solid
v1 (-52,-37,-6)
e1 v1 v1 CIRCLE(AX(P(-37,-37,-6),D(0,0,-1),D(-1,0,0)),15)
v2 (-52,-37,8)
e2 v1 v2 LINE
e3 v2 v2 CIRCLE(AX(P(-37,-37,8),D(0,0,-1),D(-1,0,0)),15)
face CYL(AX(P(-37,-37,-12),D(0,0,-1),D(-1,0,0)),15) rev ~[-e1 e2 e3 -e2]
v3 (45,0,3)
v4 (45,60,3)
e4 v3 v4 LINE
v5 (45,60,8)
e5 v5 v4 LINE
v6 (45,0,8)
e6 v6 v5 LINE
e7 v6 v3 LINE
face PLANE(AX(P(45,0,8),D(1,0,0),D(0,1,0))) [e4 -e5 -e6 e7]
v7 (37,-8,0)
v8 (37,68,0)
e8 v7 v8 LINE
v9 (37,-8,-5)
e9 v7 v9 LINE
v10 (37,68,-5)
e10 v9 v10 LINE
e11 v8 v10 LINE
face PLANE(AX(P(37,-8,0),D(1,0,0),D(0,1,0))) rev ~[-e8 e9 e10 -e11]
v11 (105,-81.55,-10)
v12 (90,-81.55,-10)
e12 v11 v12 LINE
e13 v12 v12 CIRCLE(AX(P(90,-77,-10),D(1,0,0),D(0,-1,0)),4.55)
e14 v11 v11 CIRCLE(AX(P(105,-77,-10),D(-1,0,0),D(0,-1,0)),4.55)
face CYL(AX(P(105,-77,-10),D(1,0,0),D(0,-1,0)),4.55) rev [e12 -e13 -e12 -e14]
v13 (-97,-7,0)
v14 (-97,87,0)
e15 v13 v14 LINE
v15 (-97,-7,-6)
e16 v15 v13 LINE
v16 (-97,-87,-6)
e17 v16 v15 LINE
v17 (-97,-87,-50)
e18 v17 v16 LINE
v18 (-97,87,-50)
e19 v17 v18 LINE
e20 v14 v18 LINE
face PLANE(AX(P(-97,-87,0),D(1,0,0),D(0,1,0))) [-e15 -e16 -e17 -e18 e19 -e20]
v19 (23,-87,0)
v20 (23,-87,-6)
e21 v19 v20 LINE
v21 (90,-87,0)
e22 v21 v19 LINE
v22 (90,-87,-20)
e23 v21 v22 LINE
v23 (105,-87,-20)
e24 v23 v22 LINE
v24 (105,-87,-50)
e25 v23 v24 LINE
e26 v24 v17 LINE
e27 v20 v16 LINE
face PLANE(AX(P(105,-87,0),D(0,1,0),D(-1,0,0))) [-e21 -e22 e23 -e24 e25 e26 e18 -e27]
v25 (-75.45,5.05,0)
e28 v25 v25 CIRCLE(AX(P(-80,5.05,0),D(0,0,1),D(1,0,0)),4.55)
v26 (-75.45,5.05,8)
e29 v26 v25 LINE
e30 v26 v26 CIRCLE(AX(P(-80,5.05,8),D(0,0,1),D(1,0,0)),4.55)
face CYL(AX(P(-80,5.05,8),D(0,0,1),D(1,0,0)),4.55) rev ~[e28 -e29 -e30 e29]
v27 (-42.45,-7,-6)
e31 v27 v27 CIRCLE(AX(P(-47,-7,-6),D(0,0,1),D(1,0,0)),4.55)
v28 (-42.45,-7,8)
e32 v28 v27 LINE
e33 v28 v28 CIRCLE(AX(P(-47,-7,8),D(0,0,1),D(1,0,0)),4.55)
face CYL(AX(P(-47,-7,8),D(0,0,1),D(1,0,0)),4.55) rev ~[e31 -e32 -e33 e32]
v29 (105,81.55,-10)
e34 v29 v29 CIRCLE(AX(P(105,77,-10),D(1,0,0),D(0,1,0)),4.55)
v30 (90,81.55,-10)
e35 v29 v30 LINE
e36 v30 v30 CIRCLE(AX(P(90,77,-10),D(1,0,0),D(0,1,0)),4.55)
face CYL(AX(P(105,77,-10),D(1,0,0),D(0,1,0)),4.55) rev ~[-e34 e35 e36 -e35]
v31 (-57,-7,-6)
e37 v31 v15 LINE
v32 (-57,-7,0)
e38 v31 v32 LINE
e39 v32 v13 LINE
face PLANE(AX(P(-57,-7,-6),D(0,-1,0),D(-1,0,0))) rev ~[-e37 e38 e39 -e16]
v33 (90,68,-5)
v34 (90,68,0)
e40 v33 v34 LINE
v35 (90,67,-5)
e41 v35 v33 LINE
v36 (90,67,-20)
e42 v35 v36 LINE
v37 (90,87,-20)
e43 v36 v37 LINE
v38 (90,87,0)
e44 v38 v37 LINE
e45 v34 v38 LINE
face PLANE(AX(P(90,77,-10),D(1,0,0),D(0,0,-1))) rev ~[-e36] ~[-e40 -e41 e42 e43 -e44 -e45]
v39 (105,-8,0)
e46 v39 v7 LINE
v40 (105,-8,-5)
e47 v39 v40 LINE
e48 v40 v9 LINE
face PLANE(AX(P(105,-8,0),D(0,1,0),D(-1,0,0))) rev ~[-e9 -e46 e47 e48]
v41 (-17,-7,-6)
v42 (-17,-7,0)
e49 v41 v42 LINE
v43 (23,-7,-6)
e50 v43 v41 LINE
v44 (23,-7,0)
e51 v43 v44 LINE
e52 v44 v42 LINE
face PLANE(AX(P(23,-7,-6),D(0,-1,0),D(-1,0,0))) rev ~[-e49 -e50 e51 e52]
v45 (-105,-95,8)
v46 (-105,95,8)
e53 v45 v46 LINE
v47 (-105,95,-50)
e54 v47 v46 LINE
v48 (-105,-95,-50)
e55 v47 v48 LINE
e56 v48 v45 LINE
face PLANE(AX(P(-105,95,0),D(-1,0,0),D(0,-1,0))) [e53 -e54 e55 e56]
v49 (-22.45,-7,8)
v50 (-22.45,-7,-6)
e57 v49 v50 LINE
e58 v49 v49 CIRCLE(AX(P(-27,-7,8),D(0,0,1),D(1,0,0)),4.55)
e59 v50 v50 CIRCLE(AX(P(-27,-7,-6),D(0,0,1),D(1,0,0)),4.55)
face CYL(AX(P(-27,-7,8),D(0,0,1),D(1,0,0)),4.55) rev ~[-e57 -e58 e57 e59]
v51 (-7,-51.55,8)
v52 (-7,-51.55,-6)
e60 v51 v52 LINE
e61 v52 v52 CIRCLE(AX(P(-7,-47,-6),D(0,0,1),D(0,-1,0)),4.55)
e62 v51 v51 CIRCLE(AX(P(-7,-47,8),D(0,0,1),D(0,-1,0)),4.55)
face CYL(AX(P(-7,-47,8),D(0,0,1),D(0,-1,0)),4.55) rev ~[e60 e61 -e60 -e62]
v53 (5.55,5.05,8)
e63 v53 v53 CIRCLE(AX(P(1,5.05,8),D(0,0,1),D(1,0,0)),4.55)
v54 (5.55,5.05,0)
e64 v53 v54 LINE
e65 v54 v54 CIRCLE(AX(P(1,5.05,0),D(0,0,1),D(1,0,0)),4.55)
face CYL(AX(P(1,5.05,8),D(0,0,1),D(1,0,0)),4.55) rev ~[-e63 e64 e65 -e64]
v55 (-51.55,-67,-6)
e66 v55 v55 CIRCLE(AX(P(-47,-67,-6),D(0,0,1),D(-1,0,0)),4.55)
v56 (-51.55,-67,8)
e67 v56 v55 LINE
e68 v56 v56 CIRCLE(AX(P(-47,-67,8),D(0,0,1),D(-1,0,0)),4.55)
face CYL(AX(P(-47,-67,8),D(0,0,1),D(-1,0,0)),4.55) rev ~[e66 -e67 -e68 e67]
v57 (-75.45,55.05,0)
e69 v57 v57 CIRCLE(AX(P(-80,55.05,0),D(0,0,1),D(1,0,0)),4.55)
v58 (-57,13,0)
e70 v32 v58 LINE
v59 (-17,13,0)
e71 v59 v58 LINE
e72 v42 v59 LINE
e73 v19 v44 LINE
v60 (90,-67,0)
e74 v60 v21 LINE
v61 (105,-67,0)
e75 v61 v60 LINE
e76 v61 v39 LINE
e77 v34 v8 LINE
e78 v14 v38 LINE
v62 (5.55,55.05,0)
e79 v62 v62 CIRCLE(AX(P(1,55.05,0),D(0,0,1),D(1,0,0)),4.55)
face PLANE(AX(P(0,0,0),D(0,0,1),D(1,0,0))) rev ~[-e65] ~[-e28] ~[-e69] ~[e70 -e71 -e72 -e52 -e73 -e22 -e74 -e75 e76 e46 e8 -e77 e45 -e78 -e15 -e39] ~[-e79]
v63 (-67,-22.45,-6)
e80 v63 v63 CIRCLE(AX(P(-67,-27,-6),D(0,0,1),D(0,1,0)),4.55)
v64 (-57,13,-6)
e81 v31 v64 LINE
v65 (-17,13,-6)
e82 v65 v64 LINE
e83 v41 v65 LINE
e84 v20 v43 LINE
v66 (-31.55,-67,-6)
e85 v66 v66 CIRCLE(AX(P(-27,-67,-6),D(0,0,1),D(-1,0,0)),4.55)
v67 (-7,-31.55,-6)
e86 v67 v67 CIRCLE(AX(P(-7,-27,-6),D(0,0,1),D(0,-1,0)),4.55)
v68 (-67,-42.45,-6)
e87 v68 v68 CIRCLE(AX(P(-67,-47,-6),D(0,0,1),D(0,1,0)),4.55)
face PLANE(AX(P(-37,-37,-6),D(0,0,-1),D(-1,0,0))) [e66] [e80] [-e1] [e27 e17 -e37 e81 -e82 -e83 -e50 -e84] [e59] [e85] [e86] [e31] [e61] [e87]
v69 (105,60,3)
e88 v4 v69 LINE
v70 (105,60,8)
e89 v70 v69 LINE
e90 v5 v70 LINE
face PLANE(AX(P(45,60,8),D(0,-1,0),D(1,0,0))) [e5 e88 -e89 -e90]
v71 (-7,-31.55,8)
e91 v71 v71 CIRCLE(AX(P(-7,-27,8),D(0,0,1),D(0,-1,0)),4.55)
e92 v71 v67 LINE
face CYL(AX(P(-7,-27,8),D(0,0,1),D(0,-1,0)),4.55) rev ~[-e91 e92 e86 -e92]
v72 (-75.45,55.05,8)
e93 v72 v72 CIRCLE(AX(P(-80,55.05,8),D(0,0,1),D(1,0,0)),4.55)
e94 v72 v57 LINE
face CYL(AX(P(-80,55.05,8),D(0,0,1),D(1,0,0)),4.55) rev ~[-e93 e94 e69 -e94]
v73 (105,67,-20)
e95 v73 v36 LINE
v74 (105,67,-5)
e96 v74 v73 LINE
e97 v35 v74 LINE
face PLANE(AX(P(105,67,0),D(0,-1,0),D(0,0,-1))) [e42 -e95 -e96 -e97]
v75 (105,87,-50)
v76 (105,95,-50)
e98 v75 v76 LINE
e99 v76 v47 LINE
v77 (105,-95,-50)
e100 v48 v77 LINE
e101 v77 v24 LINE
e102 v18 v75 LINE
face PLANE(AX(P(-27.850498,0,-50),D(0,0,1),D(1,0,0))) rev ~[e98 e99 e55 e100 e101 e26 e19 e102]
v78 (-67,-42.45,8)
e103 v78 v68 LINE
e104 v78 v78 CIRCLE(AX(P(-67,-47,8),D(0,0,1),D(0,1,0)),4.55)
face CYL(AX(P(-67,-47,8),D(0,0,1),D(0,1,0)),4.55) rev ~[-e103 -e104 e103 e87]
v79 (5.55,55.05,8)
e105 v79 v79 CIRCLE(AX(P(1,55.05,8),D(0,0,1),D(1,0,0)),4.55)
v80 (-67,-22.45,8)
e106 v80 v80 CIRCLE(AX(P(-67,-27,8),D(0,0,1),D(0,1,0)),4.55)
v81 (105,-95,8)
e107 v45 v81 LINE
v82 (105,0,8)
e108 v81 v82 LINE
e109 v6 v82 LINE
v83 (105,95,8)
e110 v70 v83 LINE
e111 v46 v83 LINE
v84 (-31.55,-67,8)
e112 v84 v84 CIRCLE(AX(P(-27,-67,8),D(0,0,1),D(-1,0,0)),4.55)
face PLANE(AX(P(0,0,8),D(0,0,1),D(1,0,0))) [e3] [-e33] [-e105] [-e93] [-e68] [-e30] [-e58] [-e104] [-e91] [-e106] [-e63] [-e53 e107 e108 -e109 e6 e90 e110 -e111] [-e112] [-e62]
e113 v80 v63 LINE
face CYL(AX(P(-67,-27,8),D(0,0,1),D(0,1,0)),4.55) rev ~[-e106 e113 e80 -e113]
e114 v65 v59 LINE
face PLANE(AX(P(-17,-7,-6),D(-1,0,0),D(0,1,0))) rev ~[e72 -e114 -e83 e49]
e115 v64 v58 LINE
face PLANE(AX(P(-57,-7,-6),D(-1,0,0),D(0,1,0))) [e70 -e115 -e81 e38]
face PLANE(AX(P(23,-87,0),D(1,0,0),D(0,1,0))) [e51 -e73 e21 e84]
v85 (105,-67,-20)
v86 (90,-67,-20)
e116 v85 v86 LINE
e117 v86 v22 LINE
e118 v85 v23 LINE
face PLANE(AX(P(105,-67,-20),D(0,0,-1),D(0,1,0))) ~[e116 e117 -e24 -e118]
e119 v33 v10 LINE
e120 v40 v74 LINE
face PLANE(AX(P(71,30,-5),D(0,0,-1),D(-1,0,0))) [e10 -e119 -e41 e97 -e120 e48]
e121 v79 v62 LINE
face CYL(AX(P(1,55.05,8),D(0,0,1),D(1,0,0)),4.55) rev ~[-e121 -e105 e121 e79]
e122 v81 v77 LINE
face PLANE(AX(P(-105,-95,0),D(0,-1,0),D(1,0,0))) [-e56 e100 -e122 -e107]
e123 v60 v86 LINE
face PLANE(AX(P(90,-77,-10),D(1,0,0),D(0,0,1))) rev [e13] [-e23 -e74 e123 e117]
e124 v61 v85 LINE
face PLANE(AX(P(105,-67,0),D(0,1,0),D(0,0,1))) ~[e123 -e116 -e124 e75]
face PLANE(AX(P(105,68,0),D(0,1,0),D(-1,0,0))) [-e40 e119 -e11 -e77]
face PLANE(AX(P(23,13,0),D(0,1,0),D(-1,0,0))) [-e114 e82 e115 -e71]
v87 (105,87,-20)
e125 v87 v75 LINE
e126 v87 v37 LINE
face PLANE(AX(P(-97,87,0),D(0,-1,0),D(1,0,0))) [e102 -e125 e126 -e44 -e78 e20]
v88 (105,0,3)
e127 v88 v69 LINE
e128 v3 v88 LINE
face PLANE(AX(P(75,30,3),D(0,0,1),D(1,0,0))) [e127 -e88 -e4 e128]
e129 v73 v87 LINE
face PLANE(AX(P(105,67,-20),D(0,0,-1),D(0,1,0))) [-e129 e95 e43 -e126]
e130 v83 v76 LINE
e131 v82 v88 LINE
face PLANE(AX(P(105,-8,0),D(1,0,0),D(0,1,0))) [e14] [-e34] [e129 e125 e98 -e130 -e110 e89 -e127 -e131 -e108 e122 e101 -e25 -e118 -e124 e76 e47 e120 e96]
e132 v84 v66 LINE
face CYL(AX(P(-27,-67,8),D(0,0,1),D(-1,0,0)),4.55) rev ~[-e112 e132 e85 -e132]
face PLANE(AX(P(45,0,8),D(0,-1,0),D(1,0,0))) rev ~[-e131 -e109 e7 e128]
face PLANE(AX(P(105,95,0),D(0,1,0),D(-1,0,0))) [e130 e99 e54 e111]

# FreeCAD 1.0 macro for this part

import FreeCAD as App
import Part
import Sketcher
Q = App.Units.Quantity


def add_polygon(sketch, points):
    """Adds a closed chain of lines whose ends are joined by coincident constraints."""
    first, n = sketch.GeometryCount, len(points)
    for a, b in zip(points, points[1:] + points[:1]):
        sketch.addGeometry(Part.LineSegment(App.Vector(*a, 0), App.Vector(*b, 0)), False)
    for i in range(n):
        sketch.addConstraint(Sketcher.Constraint("Coincident", first + i, 2, first + (i + 1) % n, 1))

doc = App.newDocument("Part")
body = doc.addObject("PartDesign::Body", "Body")

# Sketch on XY plane
sketch1 = body.newObject("Sketcher::SketchObject", "Sketch")
sketch1.AttachmentSupport = (doc.getObject("XY_Plane"), [""])
sketch1.MapMode = "FlatFace"
add_polygon(sketch1, [(-105, 95), (-105, -95), (105, -95), (105, 95)])  # lines 0-3
sketch1.addConstraint([
    Sketcher.Constraint("Vertical", 0),
    Sketcher.Constraint("Horizontal", 1),
    Sketcher.Constraint("Vertical", 2),
    Sketcher.Constraint("Horizontal", 3),
    Sketcher.Constraint("Symmetric", 0, 2, 2, 2, -1, 1),
    Sketcher.Constraint("DistanceX", 1, 1, 1, 2, Q("210 mm")),
    Sketcher.Constraint("DistanceY", 0, 2, 0, 1, Q("190 mm")),
])
pad1 = body.newObject("PartDesign::Pad", "Pad")
pad1.Profile = sketch1
pad1.Length = 8

# Sketch on XY plane
sketch2 = body.newObject("Sketcher::SketchObject", "Sketch001")
sketch2.AttachmentSupport = (doc.getObject("XY_Plane"), [""])
sketch2.MapMode = "FlatFace"
add_polygon(sketch2, [(-105, 95), (105, 95), (105, 87), (-97, 87), (-97, -87), (105, -87), (105, -95), (-105, -95)])  # lines 0-7
sketch2.addConstraint([
    Sketcher.Constraint("Horizontal", 0),
    Sketcher.Constraint("Vertical", 1),
    Sketcher.Constraint("Horizontal", 2),
    Sketcher.Constraint("Vertical", 3),
    Sketcher.Constraint("Horizontal", 4),
    Sketcher.Constraint("Vertical", 5),
    Sketcher.Constraint("Horizontal", 6),
    Sketcher.Constraint("Vertical", 7),
    Sketcher.Constraint("Symmetric", 0, 2, 6, 2, -1, 1),
    Sketcher.Constraint("Symmetric", 1, 2, 4, 2, -1),
    Sketcher.Constraint("DistanceX", 0, 1, 0, 2, Q("210 mm")),
    Sketcher.Constraint("DistanceX", 2, 2, 2, 1, Q("202 mm")),
    Sketcher.Constraint("DistanceY", 1, 2, 1, 1, Q("8 mm")),
    Sketcher.Constraint("DistanceY", 3, 2, 3, 1, Q("174 mm")),
])
pad2 = body.newObject("PartDesign::Pad", "Pad001")
pad2.Profile = sketch2
pad2.Length = 50
pad2.Reversed = True

# Sketch on YZ plane
sketch3 = body.newObject("Sketcher::SketchObject", "Sketch002")
sketch3.AttachmentSupport = (doc.getObject("YZ_Plane"), [""])
sketch3.MapMode = "FlatFace"
sketch3.AttachmentOffset = App.Placement(App.Vector(0, 0, 105), App.Rotation())
add_polygon(sketch3, [(87, 0), (67, 0), (67, -20), (87, -20)])  # lines 0-3
sketch3.addConstraint([
    Sketcher.Constraint("Horizontal", 0),
    Sketcher.Constraint("Vertical", 1),
    Sketcher.Constraint("Horizontal", 2),
    Sketcher.Constraint("Vertical", 3),
    Sketcher.Constraint("PointOnObject", 0, 2, -1),
    Sketcher.Constraint("Equal", 2, 1),
    Sketcher.Constraint("DistanceX", 0, 2, 0, 1, Q("20 mm")),
    Sketcher.Constraint("DistanceX", -1, 1, 0, 2, Q("67 mm")),
])
pad3 = body.newObject("PartDesign::Pad", "Pad002")
pad3.Profile = sketch3
pad3.Length = 15
pad3.Reversed = True

# Sketch on YZ plane
sketch4 = body.newObject("Sketcher::SketchObject", "Sketch003")
sketch4.AttachmentSupport = (doc.getObject("YZ_Plane"), [""])
sketch4.MapMode = "FlatFace"
sketch4.AttachmentOffset = App.Placement(App.Vector(0, 0, 105), App.Rotation())
sketch4.addGeometry(Part.Circle(App.Vector(77, -10, 0), App.Vector(0, 0, 1), 4.5), False)
sketch4.addConstraint([
    Sketcher.Constraint("Diameter", 0, Q("9.1 mm")),
    Sketcher.Constraint("DistanceX", -1, 1, 0, 3, Q("77 mm")),
    Sketcher.Constraint("DistanceY", 0, 3, -1, 1, Q("10 mm")),
])
pocket1 = body.newObject("PartDesign::Pocket", "Pocket")
pocket1.Profile = sketch4
pocket1.Length = 25
doc.recompute()

mirrored = body.newObject("PartDesign::Mirrored", "Mirrored")
mirrored.Originals = [pad3, pocket1]
mirrored.MirrorPlane = (doc.getObject("XZ_Plane"), [""])
body.Tip = mirrored

# Sketch on XY plane
sketch5 = body.newObject("Sketcher::SketchObject", "Sketch004")
sketch5.AttachmentSupport = (doc.getObject("XY_Plane"), [""])
sketch5.MapMode = "FlatFace"
add_polygon(sketch5, [(23, 13), (23, -87), (-97, -87), (-97, 13)])  # lines 0-3
sketch5.addConstraint([
    Sketcher.Constraint("Vertical", 0),
    Sketcher.Constraint("Horizontal", 1),
    Sketcher.Constraint("Vertical", 2),
    Sketcher.Constraint("Horizontal", 3),
    Sketcher.Constraint("DistanceX", 1, 2, 1, 1, Q("120 mm")),
    Sketcher.Constraint("DistanceY", 0, 2, 0, 1, Q("100 mm")),
    Sketcher.Constraint("DistanceX", -1, 1, 0, 2, Q("23 mm")),
    Sketcher.Constraint("DistanceY", 0, 2, -1, 1, Q("87 mm")),
])
pad4 = body.newObject("PartDesign::Pad", "Pad003")
pad4.Profile = sketch5
pad4.Length = 12
pad4.Reversed = True

# Sketch on XY plane
sketch6 = body.newObject("Sketcher::SketchObject", "Sketch005")
sketch6.AttachmentSupport = (doc.getObject("XY_Plane"), [""])
sketch6.MapMode = "FlatFace"
sketch6.AttachmentOffset = App.Placement(App.Vector(0, 0, -12), App.Rotation())
sketch6.addGeometry(Part.Circle(App.Vector(-37, -37, 0), App.Vector(0, 0, 1), 15), False)
sketch6.addConstraint([
    Sketcher.Constraint("Diameter", 0, Q("30 mm")),
    Sketcher.Constraint("DistanceX", 0, 3, -1, 1, Q("37 mm")),
    Sketcher.Constraint("DistanceY", 0, 3, -1, 1, Q("37 mm")),
])
pocket2 = body.newObject("PartDesign::Pocket", "Pocket001")
pocket2.Profile = sketch6
pocket2.Type = "ThroughAll"
pocket2.Reversed = True

# Sketch on XY plane
sketch7 = body.newObject("Sketcher::SketchObject", "Sketch006")
sketch7.AttachmentSupport = (doc.getObject("XY_Plane"), [""])
sketch7.MapMode = "FlatFace"
sketch7.AttachmentOffset = App.Placement(App.Vector(0, 0, 8), App.Rotation())
sketch7.addGeometry([
    Part.Circle(App.Vector(-47, -7, 0), App.Vector(0, 0, 1), 4.5),
    Part.Circle(App.Vector(-27, -7, 0), App.Vector(0, 0, 1), 4.5),
], False)
sketch7.addConstraint([
    Sketcher.Constraint("Equal", 0, 1),
    Sketcher.Constraint("Horizontal", 0, 3, 1, 3),
    Sketcher.Constraint("Diameter", 0, Q("9.1 mm")),
    Sketcher.Constraint("DistanceX", 0, 3, -1, 1, Q("47 mm")),
    Sketcher.Constraint("DistanceY", 0, 3, -1, 1, Q("7 mm")),
    Sketcher.Constraint("DistanceX", 1, 3, -1, 1, Q("27 mm")),
])
pocket3 = body.newObject("PartDesign::Pocket", "Pocket002")
pocket3.Profile = sketch7
pocket3.Type = "ThroughAll"
doc.recompute()

datumline = body.newObject("PartDesign::Line", "DatumLine")
datumline.Placement = App.Placement(App.Vector(-37, -37, 0), App.Rotation(App.Vector(0, 0, 1), App.Vector(0, 0, 1)))
polarpattern = body.newObject("PartDesign::PolarPattern", "PolarPattern")
polarpattern.Originals = [pocket3]
polarpattern.Axis = (datumline, [""])
polarpattern.Angle = 360
polarpattern.Occurrences = 4
body.Tip = polarpattern

# Sketch on XY plane
sketch8 = body.newObject("Sketcher::SketchObject", "Sketch007")
sketch8.AttachmentSupport = (doc.getObject("XY_Plane"), [""])
sketch8.MapMode = "FlatFace"
sketch8.AttachmentOffset = App.Placement(App.Vector(0, 0, -12), App.Rotation())
add_polygon(sketch8, [(23, 13), (23, -87), (-97, -87), (-97, 13)])  # lines 0-3
sketch8.addConstraint([
    Sketcher.Constraint("Vertical", 0),
    Sketcher.Constraint("Horizontal", 1),
    Sketcher.Constraint("Vertical", 2),
    Sketcher.Constraint("Horizontal", 3),
    Sketcher.Constraint("DistanceX", 1, 2, 1, 1, Q("120 mm")),
    Sketcher.Constraint("DistanceY", 0, 2, 0, 1, Q("100 mm")),
    Sketcher.Constraint("DistanceX", -1, 1, 0, 2, Q("23 mm")),
    Sketcher.Constraint("DistanceY", 0, 2, -1, 1, Q("87 mm")),
])
pocket4 = body.newObject("PartDesign::Pocket", "Pocket003")
pocket4.Profile = sketch8
pocket4.Length = 6
pocket4.Reversed = True

# Sketch on XY plane
sketch9 = body.newObject("Sketcher::SketchObject", "Sketch008")
sketch9.AttachmentSupport = (doc.getObject("XY_Plane"), [""])
sketch9.MapMode = "FlatFace"
add_polygon(sketch9, [(105, 68), (105, -8), (37, -8), (37, 68)])  # lines 0-3
sketch9.addConstraint([
    Sketcher.Constraint("Vertical", 0),
    Sketcher.Constraint("Horizontal", 1),
    Sketcher.Constraint("Vertical", 2),
    Sketcher.Constraint("Horizontal", 3),
    Sketcher.Constraint("DistanceX", 1, 2, 1, 1, Q("68 mm")),
    Sketcher.Constraint("DistanceY", 0, 2, 0, 1, Q("76 mm")),
    Sketcher.Constraint("DistanceX", -1, 1, 0, 2, Q("105 mm")),
    Sketcher.Constraint("DistanceY", 0, 2, -1, 1, Q("8 mm")),
])
pad5 = body.newObject("PartDesign::Pad", "Pad004")
pad5.Profile = sketch9
pad5.Length = 5
pad5.Reversed = True

# Sketch on XY plane
sketch10 = body.newObject("Sketcher::SketchObject", "Sketch009")
sketch10.AttachmentSupport = (doc.getObject("XY_Plane"), [""])
sketch10.MapMode = "FlatFace"
sketch10.AttachmentOffset = App.Placement(App.Vector(0, 0, 8), App.Rotation())
add_polygon(sketch10, [(45, 60), (45, 0), (105, 0), (105, 60)])  # lines 0-3
sketch10.addConstraint([
    Sketcher.Constraint("Vertical", 0),
    Sketcher.Constraint("Horizontal", 1),
    Sketcher.Constraint("Vertical", 2),
    Sketcher.Constraint("Horizontal", 3),
    Sketcher.Constraint("PointOnObject", 0, 2, -1),
    Sketcher.Constraint("Equal", 3, 0),
    Sketcher.Constraint("DistanceX", 1, 1, 1, 2, Q("60 mm")),
    Sketcher.Constraint("DistanceX", -1, 1, 0, 2, Q("45 mm")),
])
pocket5 = body.newObject("PartDesign::Pocket", "Pocket004")
pocket5.Profile = sketch10
pocket5.Length = 5

# Sketch on XY plane
sketch11 = body.newObject("Sketcher::SketchObject", "Sketch010")
sketch11.AttachmentSupport = (doc.getObject("XY_Plane"), [""])
sketch11.MapMode = "FlatFace"
sketch11.AttachmentOffset = App.Placement(App.Vector(0, 0, 8), App.Rotation())
sketch11.addGeometry([
    Part.Circle(App.Vector(1, 5, 0), App.Vector(0, 0, 1), 4.5),
    Part.Circle(App.Vector(-80, 5, 0), App.Vector(0, 0, 1), 4.5),
    Part.Circle(App.Vector(-80, 55, 0), App.Vector(0, 0, 1), 4.5),
    Part.Circle(App.Vector(1, 55, 0), App.Vector(0, 0, 1), 4.5),
], False)
sketch11.addConstraint([
    Sketcher.Constraint("Equal", 0, 1),
    Sketcher.Constraint("Equal", 1, 2),
    Sketcher.Constraint("Equal", 2, 3),
    Sketcher.Constraint("Horizontal", 0, 3, 1, 3),
    Sketcher.Constraint("Horizontal", 2, 3, 3, 3),
    Sketcher.Constraint("Vertical", 1, 3, 2, 3),
    Sketcher.Constraint("Vertical", 0, 3, 3, 3),
    Sketcher.Constraint("Diameter", 0, Q("9.1 mm")),
    Sketcher.Constraint("DistanceX", -1, 1, 0, 3, Q("1 mm")),
    Sketcher.Constraint("DistanceX", 1, 3, -1, 1, Q("80 mm")),
    Sketcher.Constraint("DistanceY", 1, 3, 2, 3, Q("50 mm")),
    Sketcher.Constraint("DistanceY", -1, 1, 0, 3, Q("5.05 mm")),
])
pocket6 = body.newObject("PartDesign::Pocket", "Pocket005")
pocket6.Profile = sketch11
pocket6.Type = "ThroughAll"

# Sketch on XY plane
sketch12 = body.newObject("Sketcher::SketchObject", "Sketch011")
sketch12.AttachmentSupport = (doc.getObject("XY_Plane"), [""])
sketch12.MapMode = "FlatFace"
sketch12.AttachmentOffset = App.Placement(App.Vector(0, 0, -6), App.Rotation())
add_polygon(sketch12, [(23, 13), (23, -7), (-17, -7), (-17, 13)])  # lines 0-3
add_polygon(sketch12, [(-57, 13), (-57, -7), (-97, -7), (-97, 13)])  # lines 4-7
sketch12.addConstraint([
    Sketcher.Constraint("Vertical", 0),
    Sketcher.Constraint("Horizontal", 1),
    Sketcher.Constraint("Vertical", 2),
    Sketcher.Constraint("Horizontal", 3),
    Sketcher.Constraint("Vertical", 4),
    Sketcher.Constraint("Horizontal", 5),
    Sketcher.Constraint("Vertical", 6),
    Sketcher.Constraint("Horizontal", 7),
    Sketcher.Constraint("Horizontal", 1, 2, 4, 2),
    Sketcher.Constraint("Horizontal", 3, 2, 6, 2),
    Sketcher.Constraint("Equal", 3, 5),
    Sketcher.Constraint("DistanceX", 1, 2, 1, 1, Q("40 mm")),
    Sketcher.Constraint("DistanceY", 0, 2, 0, 1, Q("20 mm")),
    Sketcher.Constraint("DistanceX", -1, 1, 0, 2, Q("23 mm")),
    Sketcher.Constraint("DistanceY", 0, 2, -1, 1, Q("7 mm")),
    Sketcher.Constraint("DistanceX", 4, 2, -1, 1, Q("57 mm")),
])
pocket7 = body.newObject("PartDesign::Pocket", "Pocket006")
pocket7.Profile = sketch12
pocket7.Length = 6
pocket7.Reversed = True

doc.recompute()
